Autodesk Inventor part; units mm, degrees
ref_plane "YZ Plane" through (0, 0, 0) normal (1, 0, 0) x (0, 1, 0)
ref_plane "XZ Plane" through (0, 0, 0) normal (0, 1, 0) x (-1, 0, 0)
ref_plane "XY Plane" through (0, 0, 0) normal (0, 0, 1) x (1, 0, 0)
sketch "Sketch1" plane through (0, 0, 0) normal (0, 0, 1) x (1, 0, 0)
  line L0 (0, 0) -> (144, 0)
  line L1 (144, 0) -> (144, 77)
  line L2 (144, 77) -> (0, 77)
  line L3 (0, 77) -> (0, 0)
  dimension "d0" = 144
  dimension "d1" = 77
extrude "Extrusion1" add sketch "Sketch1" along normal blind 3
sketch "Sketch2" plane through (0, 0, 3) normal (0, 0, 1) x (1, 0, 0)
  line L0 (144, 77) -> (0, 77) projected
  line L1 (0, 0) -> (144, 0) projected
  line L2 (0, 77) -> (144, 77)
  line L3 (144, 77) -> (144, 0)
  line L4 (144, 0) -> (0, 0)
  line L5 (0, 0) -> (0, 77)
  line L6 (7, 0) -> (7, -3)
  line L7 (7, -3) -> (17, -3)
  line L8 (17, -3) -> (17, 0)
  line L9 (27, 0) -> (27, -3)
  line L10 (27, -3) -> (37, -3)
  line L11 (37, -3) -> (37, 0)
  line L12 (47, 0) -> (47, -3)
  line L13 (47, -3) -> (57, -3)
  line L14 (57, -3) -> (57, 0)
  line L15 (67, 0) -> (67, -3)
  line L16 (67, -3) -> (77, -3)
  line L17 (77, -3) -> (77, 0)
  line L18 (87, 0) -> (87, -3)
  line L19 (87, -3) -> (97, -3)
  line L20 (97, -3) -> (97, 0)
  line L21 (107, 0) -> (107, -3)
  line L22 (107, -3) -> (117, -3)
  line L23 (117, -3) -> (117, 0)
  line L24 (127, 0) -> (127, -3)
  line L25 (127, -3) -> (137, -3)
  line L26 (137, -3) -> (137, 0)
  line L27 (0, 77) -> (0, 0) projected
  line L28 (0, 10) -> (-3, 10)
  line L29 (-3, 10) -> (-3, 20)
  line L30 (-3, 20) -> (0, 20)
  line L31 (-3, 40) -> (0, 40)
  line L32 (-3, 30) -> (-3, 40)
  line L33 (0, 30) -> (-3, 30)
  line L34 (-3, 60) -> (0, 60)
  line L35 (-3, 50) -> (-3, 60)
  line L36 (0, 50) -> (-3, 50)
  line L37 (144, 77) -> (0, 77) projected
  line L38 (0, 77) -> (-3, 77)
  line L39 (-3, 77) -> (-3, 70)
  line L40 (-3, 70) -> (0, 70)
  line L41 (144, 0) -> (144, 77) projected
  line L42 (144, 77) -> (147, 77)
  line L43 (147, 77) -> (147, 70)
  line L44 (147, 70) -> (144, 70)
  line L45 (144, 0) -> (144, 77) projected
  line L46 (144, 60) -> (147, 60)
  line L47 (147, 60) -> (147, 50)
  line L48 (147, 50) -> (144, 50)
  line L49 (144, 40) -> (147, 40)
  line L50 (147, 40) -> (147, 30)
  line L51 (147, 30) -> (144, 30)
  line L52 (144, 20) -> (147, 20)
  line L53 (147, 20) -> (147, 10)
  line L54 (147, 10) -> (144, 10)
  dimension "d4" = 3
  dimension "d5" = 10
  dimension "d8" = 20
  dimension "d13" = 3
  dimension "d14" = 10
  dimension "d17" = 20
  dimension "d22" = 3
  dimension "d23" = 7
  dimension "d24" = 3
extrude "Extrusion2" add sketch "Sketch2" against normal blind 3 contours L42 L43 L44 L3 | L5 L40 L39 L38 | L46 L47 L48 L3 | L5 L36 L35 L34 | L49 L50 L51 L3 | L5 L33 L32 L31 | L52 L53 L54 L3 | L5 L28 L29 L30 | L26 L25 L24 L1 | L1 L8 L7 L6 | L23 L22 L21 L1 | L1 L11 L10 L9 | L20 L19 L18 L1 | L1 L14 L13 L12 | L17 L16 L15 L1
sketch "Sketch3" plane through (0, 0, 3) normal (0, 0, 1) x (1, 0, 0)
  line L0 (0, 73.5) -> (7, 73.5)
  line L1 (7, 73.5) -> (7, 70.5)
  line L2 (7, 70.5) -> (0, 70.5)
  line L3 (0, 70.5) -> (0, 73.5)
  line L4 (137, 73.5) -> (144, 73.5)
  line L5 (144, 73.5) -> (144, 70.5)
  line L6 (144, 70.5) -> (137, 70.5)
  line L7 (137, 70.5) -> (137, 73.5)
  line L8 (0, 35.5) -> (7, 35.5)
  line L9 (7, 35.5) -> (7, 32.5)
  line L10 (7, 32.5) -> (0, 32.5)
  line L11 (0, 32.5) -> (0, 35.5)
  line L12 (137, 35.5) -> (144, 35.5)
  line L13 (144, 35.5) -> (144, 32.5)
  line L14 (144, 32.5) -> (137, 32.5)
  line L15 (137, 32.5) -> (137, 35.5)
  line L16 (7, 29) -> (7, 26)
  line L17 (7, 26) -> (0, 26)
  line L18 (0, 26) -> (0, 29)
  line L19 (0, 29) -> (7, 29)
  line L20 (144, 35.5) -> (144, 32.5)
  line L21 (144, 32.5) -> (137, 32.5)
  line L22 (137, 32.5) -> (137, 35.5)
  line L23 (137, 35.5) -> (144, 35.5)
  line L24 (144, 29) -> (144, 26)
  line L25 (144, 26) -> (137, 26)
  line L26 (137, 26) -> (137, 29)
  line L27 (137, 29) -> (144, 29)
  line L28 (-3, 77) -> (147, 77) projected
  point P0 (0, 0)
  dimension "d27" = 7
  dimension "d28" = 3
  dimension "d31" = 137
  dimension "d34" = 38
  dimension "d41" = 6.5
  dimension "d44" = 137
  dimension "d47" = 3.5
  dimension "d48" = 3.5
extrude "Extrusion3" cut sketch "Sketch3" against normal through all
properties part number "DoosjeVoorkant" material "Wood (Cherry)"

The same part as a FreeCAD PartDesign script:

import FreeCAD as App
import Part
import Sketcher

V = App.Vector
Q = App.Units.Quantity


def add_polygon(sketch, points):
    """Adds a closed chain of lines whose ends are joined by coincident constraints."""
    first, n = sketch.GeometryCount, len(points)
    for a, b in zip(points, points[1:] + points[:1]):
        sketch.addGeometry(Part.LineSegment(App.Vector(*a, 0), App.Vector(*b, 0)), False)
    for i in range(n):
        sketch.addConstraint(Sketcher.Constraint("Coincident", first + i, 2, first + (i + 1) % n, 1))

doc = App.newDocument("Part")
params = doc.addObject("Spreadsheet::Sheet", "Params")
for row, (alias, value) in enumerate([
    ("sketch1_width", "144 mm"),
    ("sketch1_height", "77 mm"),
    ("pad1_length", "3 mm"),
    ("sketch2_width", "3 mm"),
    ("sketch2_width2", "10 mm"),
    ("sketch2_height", "7 mm"),
    ("pad2_length", "3 mm"),
    ("sketch3_width", "7 mm"),
    ("sketch3_height", "3 mm"),
], start=1):
    params.set(f"A{row}", alias)
    params.set(f"B{row}", "=" + value)
    params.setAlias(f"B{row}", alias)

body = doc.addObject("PartDesign::Body", "Body")

# Sketch on XY plane
sketch1 = body.newObject("Sketcher::SketchObject", "Sketch")
sketch1.AttachmentSupport = (doc.getObject("XY_Plane"), [""])
sketch1.MapMode = "FlatFace"
add_polygon(sketch1, [(0, 77), (0, 0), (144, 0), (144, 77)])  # lines 0-3
sketch1.addConstraint([
    Sketcher.Constraint("Vertical", 0),
    Sketcher.Constraint("Horizontal", 1),
    Sketcher.Constraint("Vertical", 2),
    Sketcher.Constraint("Horizontal", 3),
    Sketcher.Constraint("Coincident", 0, 2, -1, 1),
    Sketcher.Constraint("DistanceX", 1, 1, 1, 2, Q("144 mm")),
    Sketcher.Constraint("DistanceY", 0, 2, 0, 1, Q("77 mm")),
])
sketch1.setExpression("Constraints[9]", "Params.sketch1_width")
sketch1.setExpression("Constraints[10]", "Params.sketch1_height")
pad1 = body.newObject("PartDesign::Pad", "Pad")
pad1.Profile = sketch1
pad1.setExpression("Length", "Params.pad1_length")

# Sketch on XY plane
sketch2 = body.newObject("Sketcher::SketchObject", "Sketch001")
sketch2.AttachmentSupport = (doc.getObject("XY_Plane"), [""])
sketch2.MapMode = "FlatFace"
sketch2.AttachmentOffset = App.Placement(V(0, 0, 3), App.Rotation())
add_polygon(sketch2, [(147, 77), (144, 77), (144, 70), (147, 70)])  # lines 0-3
add_polygon(sketch2, [(0, 70), (0, 77), (-3, 77), (-3, 70)])  # lines 4-7
add_polygon(sketch2, [(147, 60), (144, 60), (144, 50), (147, 50)])  # lines 8-11
add_polygon(sketch2, [(0, 50), (0, 60), (-3, 60), (-3, 50)])  # lines 12-15
add_polygon(sketch2, [(147, 40), (144, 40), (144, 30), (147, 30)])  # lines 16-19
add_polygon(sketch2, [(0, 30), (0, 40), (-3, 40), (-3, 30)])  # lines 20-23
add_polygon(sketch2, [(147, 20), (144, 20), (144, 10), (147, 10)])  # lines 24-27
add_polygon(sketch2, [(0, 10), (0, 20), (-3, 20), (-3, 10)])  # lines 28-31
add_polygon(sketch2, [(137, -3), (137, 0), (127, 0), (127, -3)])  # lines 32-35
add_polygon(sketch2, [(17, 0), (7, 0), (7, -3), (17, -3)])  # lines 36-39
add_polygon(sketch2, [(117, -3), (117, 0), (107, 0), (107, -3)])  # lines 40-43
add_polygon(sketch2, [(37, 0), (27, 0), (27, -3), (37, -3)])  # lines 44-47
add_polygon(sketch2, [(97, -3), (97, 0), (87, 0), (87, -3)])  # lines 48-51
add_polygon(sketch2, [(57, 0), (47, 0), (47, -3), (57, -3)])  # lines 52-55
add_polygon(sketch2, [(77, -3), (77, 0), (67, 0), (67, -3)])  # lines 56-59
sketch2.addConstraint([
    Sketcher.Constraint("Horizontal", 0),
    Sketcher.Constraint("Vertical", 1),
    Sketcher.Constraint("Horizontal", 2),
    Sketcher.Constraint("Vertical", 3),
    Sketcher.Constraint("Vertical", 4),
    Sketcher.Constraint("Horizontal", 5),
    Sketcher.Constraint("Vertical", 6),
    Sketcher.Constraint("Horizontal", 7),
    Sketcher.Constraint("Horizontal", 8),
    Sketcher.Constraint("Vertical", 9),
    Sketcher.Constraint("Horizontal", 10),
    Sketcher.Constraint("Vertical", 11),
    Sketcher.Constraint("Vertical", 12),
    Sketcher.Constraint("Horizontal", 13),
    Sketcher.Constraint("Vertical", 14),
    Sketcher.Constraint("Horizontal", 15),
    Sketcher.Constraint("Horizontal", 16),
    Sketcher.Constraint("Vertical", 17),
    Sketcher.Constraint("Horizontal", 18),
    Sketcher.Constraint("Vertical", 19),
    Sketcher.Constraint("Vertical", 20),
    Sketcher.Constraint("Horizontal", 21),
    Sketcher.Constraint("Vertical", 22),
    Sketcher.Constraint("Horizontal", 23),
    Sketcher.Constraint("Horizontal", 24),
    Sketcher.Constraint("Vertical", 25),
    Sketcher.Constraint("Horizontal", 26),
    Sketcher.Constraint("Vertical", 27),
    Sketcher.Constraint("Vertical", 28),
    Sketcher.Constraint("Horizontal", 29),
    Sketcher.Constraint("Vertical", 30),
    Sketcher.Constraint("Horizontal", 31),
    Sketcher.Constraint("Vertical", 32),
    Sketcher.Constraint("Horizontal", 33),
    Sketcher.Constraint("Vertical", 34),
    Sketcher.Constraint("Horizontal", 35),
    Sketcher.Constraint("Horizontal", 36),
    Sketcher.Constraint("Vertical", 37),
    Sketcher.Constraint("Horizontal", 38),
    Sketcher.Constraint("Vertical", 39),
    Sketcher.Constraint("Vertical", 40),
    Sketcher.Constraint("Horizontal", 41),
    Sketcher.Constraint("Vertical", 42),
    Sketcher.Constraint("Horizontal", 43),
    Sketcher.Constraint("Horizontal", 44),
    Sketcher.Constraint("Vertical", 45),
    Sketcher.Constraint("Horizontal", 46),
    Sketcher.Constraint("Vertical", 47),
    Sketcher.Constraint("Vertical", 48),
    Sketcher.Constraint("Horizontal", 49),
    Sketcher.Constraint("Vertical", 50),
    Sketcher.Constraint("Horizontal", 51),
    Sketcher.Constraint("Horizontal", 52),
    Sketcher.Constraint("Vertical", 53),
    Sketcher.Constraint("Horizontal", 54),
    Sketcher.Constraint("Vertical", 55),
    Sketcher.Constraint("Vertical", 56),
    Sketcher.Constraint("Horizontal", 57),
    Sketcher.Constraint("Vertical", 58),
    Sketcher.Constraint("Horizontal", 59),
    Sketcher.Constraint("PointOnObject", 4, 2, -2),
    Sketcher.Constraint("PointOnObject", 12, 2, -2),
    Sketcher.Constraint("PointOnObject", 20, 2, -2),
    Sketcher.Constraint("PointOnObject", 28, 2, -2),
    Sketcher.Constraint("PointOnObject", 32, 2, -1),
    Sketcher.Constraint("PointOnObject", 36, 2, -1),
    Sketcher.Constraint("PointOnObject", 40, 2, -1),
    Sketcher.Constraint("PointOnObject", 44, 2, -1),
    Sketcher.Constraint("PointOnObject", 48, 2, -1),
    Sketcher.Constraint("PointOnObject", 52, 2, -1),
    Sketcher.Constraint("PointOnObject", 56, 2, -1),
    Sketcher.Constraint("Horizontal", 3, 2, 4, 2),
    Sketcher.Constraint("Horizontal", 2, 2, 6, 2),
    Sketcher.Constraint("Horizontal", 11, 2, 12, 2),
    Sketcher.Constraint("Horizontal", 10, 2, 14, 2),
    Sketcher.Constraint("Horizontal", 19, 2, 20, 2),
    Sketcher.Constraint("Horizontal", 18, 2, 22, 2),
    Sketcher.Constraint("Horizontal", 27, 2, 28, 2),
    Sketcher.Constraint("Horizontal", 26, 2, 30, 2),
    Sketcher.Constraint("Horizontal", 35, 2, 37, 2),
    Sketcher.Constraint("Horizontal", 38, 2, 42, 2),
    Sketcher.Constraint("Horizontal", 43, 2, 45, 2),
    Sketcher.Constraint("Horizontal", 46, 2, 50, 2),
    Sketcher.Constraint("Horizontal", 51, 2, 53, 2),
    Sketcher.Constraint("Horizontal", 54, 2, 58, 2),
    Sketcher.Constraint("Vertical", 1, 2, 8, 2),
    Sketcher.Constraint("Vertical", 3, 2, 10, 2),
    Sketcher.Constraint("Vertical", 6, 2, 13, 2),
    Sketcher.Constraint("Vertical", 9, 2, 16, 2),
    Sketcher.Constraint("Vertical", 11, 2, 18, 2),
    Sketcher.Constraint("Vertical", 14, 2, 21, 2),
    Sketcher.Constraint("Vertical", 17, 2, 24, 2),
    Sketcher.Constraint("Vertical", 19, 2, 26, 2),
    Sketcher.Constraint("Vertical", 22, 2, 29, 2),
    Sketcher.Constraint("Equal", 2, 5),
    Sketcher.Constraint("Equal", 35, 36),
    Sketcher.Constraint("Equal", 38, 41),
    Sketcher.Constraint("Equal", 43, 44),
    Sketcher.Constraint("Equal", 46, 49),
    Sketcher.Constraint("Equal", 51, 52),
    Sketcher.Constraint("Equal", 54, 57),
    Sketcher.Constraint("Equal", 59, 9),
    Sketcher.Constraint("Equal", 14, 17),
    Sketcher.Constraint("Equal", 22, 25),
    Sketcher.Constraint("Equal", 31, 32),
    Sketcher.Constraint("DistanceX", 0, 2, 0, 1, Q("3 mm")),
    Sketcher.Constraint("DistanceX", 33, 2, 33, 1, Q("10 mm")),
    Sketcher.Constraint("DistanceY", 1, 2, 1, 1, Q("7 mm")),
    Sketcher.Constraint("DistanceY", -1, 1, 24, 2, Q("20 mm")),
    Sketcher.Constraint("DistanceX", -1, 1, 36, 2, Q("7 mm")),
    Sketcher.Constraint("DistanceY", 8, 2, 1, 2, Q("10 mm")),
    Sketcher.Constraint("DistanceY", 16, 2, 9, 2, Q("10 mm")),
    Sketcher.Constraint("DistanceY", 24, 2, 17, 2, Q("10 mm")),
    Sketcher.Constraint("DistanceX", 32, 2, 25, 2, Q("7 mm")),
    Sketcher.Constraint("DistanceX", 40, 2, 33, 2, Q("10 mm")),
    Sketcher.Constraint("DistanceX", 39, 2, 44, 2, Q("10 mm")),
    Sketcher.Constraint("DistanceX", 48, 2, 41, 2, Q("10 mm")),
    Sketcher.Constraint("DistanceX", 47, 2, 52, 2, Q("10 mm")),
    Sketcher.Constraint("DistanceX", 56, 2, 49, 2, Q("10 mm")),
    Sketcher.Constraint("DistanceX", 55, 2, 56, 2, Q("20 mm")),
])
sketch2.setExpression("Constraints[165]", "Params.sketch2_width")
sketch2.setExpression("Constraints[166]", "Params.sketch2_width2")
sketch2.setExpression("Constraints[167]", "Params.sketch2_height")
pad2 = body.newObject("PartDesign::Pad", "Pad001")
pad2.Profile = sketch2
pad2.setExpression("Length", "Params.pad2_length")
pad2.Reversed = True

# Sketch on XY plane
sketch3 = body.newObject("Sketcher::SketchObject", "Sketch002")
sketch3.AttachmentSupport = (doc.getObject("XY_Plane"), [""])
sketch3.MapMode = "FlatFace"
sketch3.AttachmentOffset = App.Placement(V(0, 0, 3), App.Rotation())
add_polygon(sketch3, [(7, 73.5), (0, 73.5), (0, 70.5), (7, 70.5)])  # lines 0-3
add_polygon(sketch3, [(144, 73.5), (137, 73.5), (137, 70.5), (144, 70.5)])  # lines 4-7
add_polygon(sketch3, [(7, 35.5), (0, 35.5), (0, 32.5), (7, 32.5)])  # lines 8-11
add_polygon(sketch3, [(144, 35.5), (137, 35.5), (137, 32.5), (144, 32.5)])  # lines 12-15
add_polygon(sketch3, [(7, 26), (7, 29), (0, 29), (0, 26)])  # lines 16-19
add_polygon(sketch3, [(144, 26), (144, 29), (137, 29), (137, 26)])  # lines 20-23
sketch3.addConstraint([
    Sketcher.Constraint("Horizontal", 0),
    Sketcher.Constraint("Vertical", 1),
    Sketcher.Constraint("Horizontal", 2),
    Sketcher.Constraint("Vertical", 3),
    Sketcher.Constraint("Horizontal", 4),
    Sketcher.Constraint("Vertical", 5),
    Sketcher.Constraint("Horizontal", 6),
    Sketcher.Constraint("Vertical", 7),
    Sketcher.Constraint("Horizontal", 8),
    Sketcher.Constraint("Vertical", 9),
    Sketcher.Constraint("Horizontal", 10),
    Sketcher.Constraint("Vertical", 11),
    Sketcher.Constraint("Horizontal", 12),
    Sketcher.Constraint("Vertical", 13),
    Sketcher.Constraint("Horizontal", 14),
    Sketcher.Constraint("Vertical", 15),
    Sketcher.Constraint("Vertical", 16),
    Sketcher.Constraint("Horizontal", 17),
    Sketcher.Constraint("Vertical", 18),
    Sketcher.Constraint("Horizontal", 19),
    Sketcher.Constraint("Vertical", 20),
    Sketcher.Constraint("Horizontal", 21),
    Sketcher.Constraint("Vertical", 22),
    Sketcher.Constraint("Horizontal", 23),
    Sketcher.Constraint("PointOnObject", 0, 2, -2),
    Sketcher.Constraint("PointOnObject", 8, 2, -2),
    Sketcher.Constraint("PointOnObject", 17, 2, -2),
    Sketcher.Constraint("Horizontal", 3, 2, 4, 2),
    Sketcher.Constraint("Horizontal", 2, 2, 5, 2),
    Sketcher.Constraint("Horizontal", 11, 2, 12, 2),
    Sketcher.Constraint("Horizontal", 10, 2, 13, 2),
    Sketcher.Constraint("Horizontal", 17, 2, 20, 2),
    Sketcher.Constraint("Horizontal", 19, 2, 22, 2),
    Sketcher.Constraint("Vertical", 3, 2, 10, 2),
    Sketcher.Constraint("Vertical", 5, 2, 12, 2),
    Sketcher.Constraint("Vertical", 7, 2, 14, 2),
    Sketcher.Constraint("Vertical", 11, 2, 16, 2),
    Sketcher.Constraint("Vertical", 15, 2, 20, 2),
    Sketcher.Constraint("Vertical", 13, 2, 21, 2),
    Sketcher.Constraint("Equal", 2, 4),
    Sketcher.Constraint("Equal", 7, 9),
    Sketcher.Constraint("Equal", 15, 16),
    Sketcher.Constraint("DistanceX", 0, 2, 0, 1, Q("7 mm")),
    Sketcher.Constraint("DistanceY", 1, 2, 1, 1, Q("3 mm")),
    Sketcher.Constraint("DistanceX", -1, 1, 4, 2, Q("137 mm")),
    Sketcher.Constraint("DistanceY", 8, 2, 0, 2, Q("38 mm")),
    Sketcher.Constraint("DistanceY", 16, 2, 10, 2, Q("3.5 mm")),
    Sketcher.Constraint("DistanceY", -1, 1, 16, 2, Q("29 mm")),
])
sketch3.setExpression("Constraints[66]", "Params.sketch3_width")
sketch3.setExpression("Constraints[67]", "Params.sketch3_height")
pocket1 = body.newObject("PartDesign::Pocket", "Pocket")
pocket1.Profile = sketch3
pocket1.Type = "ThroughAll"

doc.recompute()
